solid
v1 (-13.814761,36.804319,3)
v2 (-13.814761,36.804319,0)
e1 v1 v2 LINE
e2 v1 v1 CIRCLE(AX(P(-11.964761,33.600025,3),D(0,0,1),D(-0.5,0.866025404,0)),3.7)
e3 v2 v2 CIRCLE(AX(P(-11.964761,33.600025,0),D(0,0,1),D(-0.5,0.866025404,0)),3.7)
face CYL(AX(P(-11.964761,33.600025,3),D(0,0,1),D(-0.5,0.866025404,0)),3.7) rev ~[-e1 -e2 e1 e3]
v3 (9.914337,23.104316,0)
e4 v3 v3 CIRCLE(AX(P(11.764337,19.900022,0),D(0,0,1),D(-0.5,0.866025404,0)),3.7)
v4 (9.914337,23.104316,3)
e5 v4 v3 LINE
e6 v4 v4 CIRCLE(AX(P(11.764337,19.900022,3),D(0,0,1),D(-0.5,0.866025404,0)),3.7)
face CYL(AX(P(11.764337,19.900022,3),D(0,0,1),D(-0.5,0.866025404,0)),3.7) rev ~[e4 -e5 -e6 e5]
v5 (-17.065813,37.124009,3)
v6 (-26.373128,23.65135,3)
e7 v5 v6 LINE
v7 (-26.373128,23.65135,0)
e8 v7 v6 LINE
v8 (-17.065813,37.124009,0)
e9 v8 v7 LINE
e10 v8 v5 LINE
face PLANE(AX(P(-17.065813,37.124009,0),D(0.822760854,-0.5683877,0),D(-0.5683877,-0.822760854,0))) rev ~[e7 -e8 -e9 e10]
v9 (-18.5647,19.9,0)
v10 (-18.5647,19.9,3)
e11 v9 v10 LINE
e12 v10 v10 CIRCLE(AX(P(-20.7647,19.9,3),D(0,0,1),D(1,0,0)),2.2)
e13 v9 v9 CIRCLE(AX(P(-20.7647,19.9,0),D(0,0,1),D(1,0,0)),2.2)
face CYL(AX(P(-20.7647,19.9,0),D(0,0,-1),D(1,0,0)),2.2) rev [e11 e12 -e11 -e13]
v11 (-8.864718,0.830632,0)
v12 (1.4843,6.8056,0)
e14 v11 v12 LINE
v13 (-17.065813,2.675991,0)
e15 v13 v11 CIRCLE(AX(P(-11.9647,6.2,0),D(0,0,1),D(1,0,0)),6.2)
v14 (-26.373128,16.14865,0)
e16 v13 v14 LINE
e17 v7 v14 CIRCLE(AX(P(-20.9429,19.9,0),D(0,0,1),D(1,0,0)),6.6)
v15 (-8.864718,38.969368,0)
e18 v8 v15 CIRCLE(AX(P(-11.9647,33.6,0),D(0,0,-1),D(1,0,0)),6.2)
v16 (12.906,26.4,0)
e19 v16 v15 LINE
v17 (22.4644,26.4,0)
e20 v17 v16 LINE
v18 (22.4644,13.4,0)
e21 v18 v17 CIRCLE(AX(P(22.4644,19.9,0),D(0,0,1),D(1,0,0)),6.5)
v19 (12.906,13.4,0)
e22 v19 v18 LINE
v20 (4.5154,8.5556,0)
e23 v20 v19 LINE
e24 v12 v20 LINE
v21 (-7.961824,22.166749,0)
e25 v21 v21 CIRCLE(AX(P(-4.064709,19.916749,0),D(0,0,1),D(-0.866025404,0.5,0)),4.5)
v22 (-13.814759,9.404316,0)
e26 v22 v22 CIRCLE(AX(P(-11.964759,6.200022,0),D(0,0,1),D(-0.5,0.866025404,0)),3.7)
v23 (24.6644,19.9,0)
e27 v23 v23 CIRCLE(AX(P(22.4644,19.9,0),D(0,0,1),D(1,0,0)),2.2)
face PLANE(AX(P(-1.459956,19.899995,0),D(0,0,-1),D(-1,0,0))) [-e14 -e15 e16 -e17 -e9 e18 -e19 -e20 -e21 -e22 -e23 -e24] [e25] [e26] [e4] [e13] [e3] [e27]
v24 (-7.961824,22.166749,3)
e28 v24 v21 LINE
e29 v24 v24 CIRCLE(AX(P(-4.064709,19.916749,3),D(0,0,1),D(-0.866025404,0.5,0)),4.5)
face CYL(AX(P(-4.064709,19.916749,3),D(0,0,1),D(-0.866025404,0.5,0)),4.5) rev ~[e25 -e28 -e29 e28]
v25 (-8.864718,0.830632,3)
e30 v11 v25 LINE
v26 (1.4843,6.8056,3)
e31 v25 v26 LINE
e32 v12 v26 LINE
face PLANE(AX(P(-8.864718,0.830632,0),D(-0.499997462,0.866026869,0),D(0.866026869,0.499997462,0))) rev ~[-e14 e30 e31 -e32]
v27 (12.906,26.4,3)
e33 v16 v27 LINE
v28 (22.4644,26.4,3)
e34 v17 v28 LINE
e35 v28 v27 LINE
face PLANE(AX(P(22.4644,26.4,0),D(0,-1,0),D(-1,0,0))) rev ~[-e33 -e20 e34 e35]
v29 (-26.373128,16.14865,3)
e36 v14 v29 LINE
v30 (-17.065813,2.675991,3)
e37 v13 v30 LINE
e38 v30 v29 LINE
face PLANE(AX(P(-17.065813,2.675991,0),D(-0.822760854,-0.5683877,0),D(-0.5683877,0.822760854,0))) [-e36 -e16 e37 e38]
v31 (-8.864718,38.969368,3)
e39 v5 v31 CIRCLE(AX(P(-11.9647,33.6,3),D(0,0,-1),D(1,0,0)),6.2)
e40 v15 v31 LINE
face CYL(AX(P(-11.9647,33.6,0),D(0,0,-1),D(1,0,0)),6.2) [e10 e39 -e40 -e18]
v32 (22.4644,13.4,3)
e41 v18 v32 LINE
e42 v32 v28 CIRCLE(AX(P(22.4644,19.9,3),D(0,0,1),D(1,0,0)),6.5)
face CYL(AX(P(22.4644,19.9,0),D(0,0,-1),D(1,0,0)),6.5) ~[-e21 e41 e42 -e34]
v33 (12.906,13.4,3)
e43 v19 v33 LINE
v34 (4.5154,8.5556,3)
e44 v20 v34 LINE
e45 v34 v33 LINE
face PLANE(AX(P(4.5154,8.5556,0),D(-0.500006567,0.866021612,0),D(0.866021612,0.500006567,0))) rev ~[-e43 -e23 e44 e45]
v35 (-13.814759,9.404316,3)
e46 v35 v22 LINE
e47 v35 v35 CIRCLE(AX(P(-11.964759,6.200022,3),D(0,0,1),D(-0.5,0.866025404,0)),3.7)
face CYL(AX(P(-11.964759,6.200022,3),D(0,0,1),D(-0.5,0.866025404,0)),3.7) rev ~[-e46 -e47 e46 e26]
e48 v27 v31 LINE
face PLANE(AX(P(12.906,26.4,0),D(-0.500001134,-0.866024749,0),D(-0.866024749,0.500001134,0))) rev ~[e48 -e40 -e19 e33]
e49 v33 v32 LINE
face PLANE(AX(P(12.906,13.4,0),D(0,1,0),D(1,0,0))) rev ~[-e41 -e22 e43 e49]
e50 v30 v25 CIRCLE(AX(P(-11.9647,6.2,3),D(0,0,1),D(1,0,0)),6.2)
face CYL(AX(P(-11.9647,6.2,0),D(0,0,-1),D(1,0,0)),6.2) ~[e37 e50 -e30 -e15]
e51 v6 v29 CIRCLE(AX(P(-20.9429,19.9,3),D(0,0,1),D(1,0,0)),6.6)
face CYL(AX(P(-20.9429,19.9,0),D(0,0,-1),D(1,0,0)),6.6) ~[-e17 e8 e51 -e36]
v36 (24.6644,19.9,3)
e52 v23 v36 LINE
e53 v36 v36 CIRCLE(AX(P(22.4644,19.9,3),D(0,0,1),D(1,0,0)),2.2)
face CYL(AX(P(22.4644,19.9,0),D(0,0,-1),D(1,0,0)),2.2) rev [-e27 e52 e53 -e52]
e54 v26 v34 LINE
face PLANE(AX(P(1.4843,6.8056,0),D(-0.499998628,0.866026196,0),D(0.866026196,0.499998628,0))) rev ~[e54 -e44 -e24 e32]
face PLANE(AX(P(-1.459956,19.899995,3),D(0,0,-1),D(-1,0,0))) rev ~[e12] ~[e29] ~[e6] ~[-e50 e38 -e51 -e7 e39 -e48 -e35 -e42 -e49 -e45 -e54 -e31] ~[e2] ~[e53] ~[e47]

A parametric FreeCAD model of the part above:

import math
import FreeCAD as App
import Part
import Sketcher

V = App.Vector
Q = App.Units.Quantity

doc = App.newDocument("Part")
body = doc.addObject("PartDesign::Body", "Body")

# Sketch on XY plane
sketch1 = body.newObject("Sketcher::SketchObject", "Sketch")
sketch1.AttachmentSupport = (doc.getObject("XY_Plane"), [""])
sketch1.MapMode = "FlatFace"
sketch1.addGeometry([
    Part.LineSegment(V(-26.4, 16.1, 0), V(-17.1, 2.7, 0)),  # 0
    Part.ArcOfCircle(Part.Circle(V(-12, 6.2, 0), V(0, 0, 1), 6.2), math.radians(-145), math.radians(-60)),  # 1
    Part.LineSegment(V(-8.9, 0.8, 0), V(1.5, 6.8, 0)),  # 2
    Part.LineSegment(V(1.5, 6.8, 0), V(4.5, 8.6, 0)),  # 3
    Part.LineSegment(V(4.5, 8.6, 0), V(12.9, 13.4, 0)),  # 4
    Part.LineSegment(V(12.9, 13.4, 0), V(22.5, 13.4, 0)),  # 5
    Part.ArcOfCircle(Part.Circle(V(22.5, 19.9, 0), V(0, 0, 1), 6.5), math.radians(-90), math.radians(90)),  # 6
    Part.LineSegment(V(22.5, 26.4, 0), V(12.9, 26.4, 0)),  # 7
    Part.LineSegment(V(12.9, 26.4, 0), V(-8.9, 39, 0)),  # 8
    Part.ArcOfCircle(Part.Circle(V(-12, 33.6, 0), V(0, 0, 1), 6.2), math.radians(60), math.radians(145)),  # 9
    Part.LineSegment(V(-17.1, 37.1, 0), V(-26.4, 23.7, 0)),  # 10
    Part.ArcOfCircle(Part.Circle(V(-20.9, 19.9, 0), V(0, 0, 1), 6.6), math.radians(145), math.radians(215)),  # 11
    Part.Circle(V(-20.8, 19.9, 0), V(0, 0, 1), 2.2),  # 12
    Part.Circle(V(22.5, 19.9, 0), V(0, 0, 1), 2.2),  # 13
], False)
sketch1.addConstraint([
    Sketcher.Constraint("Tangent", 0, 2, 1, 1),
    Sketcher.Constraint("Tangent", 1, 2, 2, 1),
    Sketcher.Constraint("Coincident", 2, 2, 3, 1),
    Sketcher.Constraint("Coincident", 3, 2, 4, 1),
    Sketcher.Constraint("Coincident", 4, 2, 5, 1),
    Sketcher.Constraint("Tangent", 5, 2, 6, 1),
    Sketcher.Constraint("Tangent", 6, 2, 7, 1),
    Sketcher.Constraint("Coincident", 7, 2, 8, 1),
    Sketcher.Constraint("Tangent", 8, 2, 9, 1),
    Sketcher.Constraint("Tangent", 9, 2, 10, 1),
    Sketcher.Constraint("Tangent", 10, 2, 11, 1),
    Sketcher.Constraint("Tangent", 11, 2, 0, 1),
    Sketcher.Constraint("Horizontal", 5),
    Sketcher.Constraint("Horizontal", 7),
    Sketcher.Constraint("Coincident", 13, 3, 6, 3),
    Sketcher.Constraint("Equal", 1, 9),
    Sketcher.Constraint("Equal", 12, 13),
    Sketcher.Constraint("Parallel", 2, 3),
    Sketcher.Constraint("Parallel", 3, 4),
    Sketcher.Constraint("Horizontal", 6, 3, 11, 3),
    Sketcher.Constraint("Horizontal", 11, 3, 12, 3),
    Sketcher.Constraint("Vertical", 1, 3, 9, 3),
    Sketcher.Constraint("Vertical", 4, 2, 7, 2),
    Sketcher.Constraint("Vertical", 1, 2, 8, 2),
    Sketcher.Constraint("Diameter", 12, 4.4),
    Sketcher.Constraint("Radius", 1, 6.2),
    Sketcher.Constraint("Radius", 6, 6.5),
    Sketcher.Constraint("Radius", 11, 6.6),
    Sketcher.Constraint("Angle", 2, Q("30 deg")),
    Sketcher.Constraint("Distance", 3, 3.5),
    Sketcher.Constraint("DistanceY", -1, 1, 1, 3, 6.2),
    Sketcher.Constraint("DistanceY", -1, 1, 6, 3, 19.9),
    Sketcher.Constraint("DistanceX", 12, 3, 1, 3, 8.8),
    Sketcher.Constraint("Distance", 2, 11.95),
    Sketcher.Constraint("DistanceX", 0, 2, 2, 2, 18.55),
    Sketcher.Constraint("DistanceX", 2, 2, 6, 3, 20.98),
    Sketcher.Constraint("DistanceX", 11, 3, -1, 1, 20.943),
])
pad1 = body.newObject("PartDesign::Pad", "Pad")
pad1.Profile = sketch1
pad1.Length = 3

# Sketch on XY plane
sketch2 = body.newObject("Sketcher::SketchObject", "Sketch001")
sketch2.AttachmentSupport = (doc.getObject("XY_Plane"), [""])
sketch2.MapMode = "FlatFace"
sketch2.AttachmentOffset = App.Placement(V(0, 0, 3), App.Rotation())
sketch2.addGeometry([
    Part.Circle(V(-12, 6.2, 0), V(0, 0, 1), 3.7),
    Part.Circle(V(-12, 33.6, 0), V(0, 0, 1), 3.7),
    Part.Circle(V(11.8, 19.9, 0), V(0, 0, 1), 3.7),
], False)
sketch2.addConstraint([
    Sketcher.Constraint("Equal", 0, 1),
    Sketcher.Constraint("Equal", 1, 2),
    Sketcher.Constraint("Vertical", 0, 3, 1, 3),
    Sketcher.Constraint("Diameter", 0, 7.4),
    Sketcher.Constraint("DistanceY", -1, 1, 0, 3, 6.2),
    Sketcher.Constraint("DistanceY", -1, 1, 1, 3, 33.6),
    Sketcher.Constraint("DistanceY", -1, 1, 2, 3, 19.9),
    Sketcher.Constraint("DistanceX", 0, 3, 2, 3, 23.729),
    Sketcher.Constraint("DistanceX", 0, 3, -1, 1, 11.9648),
])
pocket1 = body.newObject("PartDesign::Pocket", "Pocket")
pocket1.Profile = sketch2
pocket1.Length = 80.9131

# Sketch on XY plane
sketch3 = body.newObject("Sketcher::SketchObject", "Sketch002")
sketch3.AttachmentSupport = (doc.getObject("XY_Plane"), [""])
sketch3.MapMode = "FlatFace"
sketch3.AttachmentOffset = App.Placement(V(0, 0, 3), App.Rotation())
sketch3.addGeometry(Part.Circle(V(-4.1, 19.9, 0), V(0, 0, 1), 4.5), False)
sketch3.addConstraint([
    Sketcher.Constraint("Diameter", 0, 9.0),
    Sketcher.Constraint("DistanceX", 0, 3, -1, 1, 4.0647),
    Sketcher.Constraint("DistanceY", -1, 1, 0, 3, 19.9167),
])
pocket2 = body.newObject("PartDesign::Pocket", "Pocket001")
pocket2.Profile = sketch3
pocket2.Length = 107.7727

doc.recompute()
